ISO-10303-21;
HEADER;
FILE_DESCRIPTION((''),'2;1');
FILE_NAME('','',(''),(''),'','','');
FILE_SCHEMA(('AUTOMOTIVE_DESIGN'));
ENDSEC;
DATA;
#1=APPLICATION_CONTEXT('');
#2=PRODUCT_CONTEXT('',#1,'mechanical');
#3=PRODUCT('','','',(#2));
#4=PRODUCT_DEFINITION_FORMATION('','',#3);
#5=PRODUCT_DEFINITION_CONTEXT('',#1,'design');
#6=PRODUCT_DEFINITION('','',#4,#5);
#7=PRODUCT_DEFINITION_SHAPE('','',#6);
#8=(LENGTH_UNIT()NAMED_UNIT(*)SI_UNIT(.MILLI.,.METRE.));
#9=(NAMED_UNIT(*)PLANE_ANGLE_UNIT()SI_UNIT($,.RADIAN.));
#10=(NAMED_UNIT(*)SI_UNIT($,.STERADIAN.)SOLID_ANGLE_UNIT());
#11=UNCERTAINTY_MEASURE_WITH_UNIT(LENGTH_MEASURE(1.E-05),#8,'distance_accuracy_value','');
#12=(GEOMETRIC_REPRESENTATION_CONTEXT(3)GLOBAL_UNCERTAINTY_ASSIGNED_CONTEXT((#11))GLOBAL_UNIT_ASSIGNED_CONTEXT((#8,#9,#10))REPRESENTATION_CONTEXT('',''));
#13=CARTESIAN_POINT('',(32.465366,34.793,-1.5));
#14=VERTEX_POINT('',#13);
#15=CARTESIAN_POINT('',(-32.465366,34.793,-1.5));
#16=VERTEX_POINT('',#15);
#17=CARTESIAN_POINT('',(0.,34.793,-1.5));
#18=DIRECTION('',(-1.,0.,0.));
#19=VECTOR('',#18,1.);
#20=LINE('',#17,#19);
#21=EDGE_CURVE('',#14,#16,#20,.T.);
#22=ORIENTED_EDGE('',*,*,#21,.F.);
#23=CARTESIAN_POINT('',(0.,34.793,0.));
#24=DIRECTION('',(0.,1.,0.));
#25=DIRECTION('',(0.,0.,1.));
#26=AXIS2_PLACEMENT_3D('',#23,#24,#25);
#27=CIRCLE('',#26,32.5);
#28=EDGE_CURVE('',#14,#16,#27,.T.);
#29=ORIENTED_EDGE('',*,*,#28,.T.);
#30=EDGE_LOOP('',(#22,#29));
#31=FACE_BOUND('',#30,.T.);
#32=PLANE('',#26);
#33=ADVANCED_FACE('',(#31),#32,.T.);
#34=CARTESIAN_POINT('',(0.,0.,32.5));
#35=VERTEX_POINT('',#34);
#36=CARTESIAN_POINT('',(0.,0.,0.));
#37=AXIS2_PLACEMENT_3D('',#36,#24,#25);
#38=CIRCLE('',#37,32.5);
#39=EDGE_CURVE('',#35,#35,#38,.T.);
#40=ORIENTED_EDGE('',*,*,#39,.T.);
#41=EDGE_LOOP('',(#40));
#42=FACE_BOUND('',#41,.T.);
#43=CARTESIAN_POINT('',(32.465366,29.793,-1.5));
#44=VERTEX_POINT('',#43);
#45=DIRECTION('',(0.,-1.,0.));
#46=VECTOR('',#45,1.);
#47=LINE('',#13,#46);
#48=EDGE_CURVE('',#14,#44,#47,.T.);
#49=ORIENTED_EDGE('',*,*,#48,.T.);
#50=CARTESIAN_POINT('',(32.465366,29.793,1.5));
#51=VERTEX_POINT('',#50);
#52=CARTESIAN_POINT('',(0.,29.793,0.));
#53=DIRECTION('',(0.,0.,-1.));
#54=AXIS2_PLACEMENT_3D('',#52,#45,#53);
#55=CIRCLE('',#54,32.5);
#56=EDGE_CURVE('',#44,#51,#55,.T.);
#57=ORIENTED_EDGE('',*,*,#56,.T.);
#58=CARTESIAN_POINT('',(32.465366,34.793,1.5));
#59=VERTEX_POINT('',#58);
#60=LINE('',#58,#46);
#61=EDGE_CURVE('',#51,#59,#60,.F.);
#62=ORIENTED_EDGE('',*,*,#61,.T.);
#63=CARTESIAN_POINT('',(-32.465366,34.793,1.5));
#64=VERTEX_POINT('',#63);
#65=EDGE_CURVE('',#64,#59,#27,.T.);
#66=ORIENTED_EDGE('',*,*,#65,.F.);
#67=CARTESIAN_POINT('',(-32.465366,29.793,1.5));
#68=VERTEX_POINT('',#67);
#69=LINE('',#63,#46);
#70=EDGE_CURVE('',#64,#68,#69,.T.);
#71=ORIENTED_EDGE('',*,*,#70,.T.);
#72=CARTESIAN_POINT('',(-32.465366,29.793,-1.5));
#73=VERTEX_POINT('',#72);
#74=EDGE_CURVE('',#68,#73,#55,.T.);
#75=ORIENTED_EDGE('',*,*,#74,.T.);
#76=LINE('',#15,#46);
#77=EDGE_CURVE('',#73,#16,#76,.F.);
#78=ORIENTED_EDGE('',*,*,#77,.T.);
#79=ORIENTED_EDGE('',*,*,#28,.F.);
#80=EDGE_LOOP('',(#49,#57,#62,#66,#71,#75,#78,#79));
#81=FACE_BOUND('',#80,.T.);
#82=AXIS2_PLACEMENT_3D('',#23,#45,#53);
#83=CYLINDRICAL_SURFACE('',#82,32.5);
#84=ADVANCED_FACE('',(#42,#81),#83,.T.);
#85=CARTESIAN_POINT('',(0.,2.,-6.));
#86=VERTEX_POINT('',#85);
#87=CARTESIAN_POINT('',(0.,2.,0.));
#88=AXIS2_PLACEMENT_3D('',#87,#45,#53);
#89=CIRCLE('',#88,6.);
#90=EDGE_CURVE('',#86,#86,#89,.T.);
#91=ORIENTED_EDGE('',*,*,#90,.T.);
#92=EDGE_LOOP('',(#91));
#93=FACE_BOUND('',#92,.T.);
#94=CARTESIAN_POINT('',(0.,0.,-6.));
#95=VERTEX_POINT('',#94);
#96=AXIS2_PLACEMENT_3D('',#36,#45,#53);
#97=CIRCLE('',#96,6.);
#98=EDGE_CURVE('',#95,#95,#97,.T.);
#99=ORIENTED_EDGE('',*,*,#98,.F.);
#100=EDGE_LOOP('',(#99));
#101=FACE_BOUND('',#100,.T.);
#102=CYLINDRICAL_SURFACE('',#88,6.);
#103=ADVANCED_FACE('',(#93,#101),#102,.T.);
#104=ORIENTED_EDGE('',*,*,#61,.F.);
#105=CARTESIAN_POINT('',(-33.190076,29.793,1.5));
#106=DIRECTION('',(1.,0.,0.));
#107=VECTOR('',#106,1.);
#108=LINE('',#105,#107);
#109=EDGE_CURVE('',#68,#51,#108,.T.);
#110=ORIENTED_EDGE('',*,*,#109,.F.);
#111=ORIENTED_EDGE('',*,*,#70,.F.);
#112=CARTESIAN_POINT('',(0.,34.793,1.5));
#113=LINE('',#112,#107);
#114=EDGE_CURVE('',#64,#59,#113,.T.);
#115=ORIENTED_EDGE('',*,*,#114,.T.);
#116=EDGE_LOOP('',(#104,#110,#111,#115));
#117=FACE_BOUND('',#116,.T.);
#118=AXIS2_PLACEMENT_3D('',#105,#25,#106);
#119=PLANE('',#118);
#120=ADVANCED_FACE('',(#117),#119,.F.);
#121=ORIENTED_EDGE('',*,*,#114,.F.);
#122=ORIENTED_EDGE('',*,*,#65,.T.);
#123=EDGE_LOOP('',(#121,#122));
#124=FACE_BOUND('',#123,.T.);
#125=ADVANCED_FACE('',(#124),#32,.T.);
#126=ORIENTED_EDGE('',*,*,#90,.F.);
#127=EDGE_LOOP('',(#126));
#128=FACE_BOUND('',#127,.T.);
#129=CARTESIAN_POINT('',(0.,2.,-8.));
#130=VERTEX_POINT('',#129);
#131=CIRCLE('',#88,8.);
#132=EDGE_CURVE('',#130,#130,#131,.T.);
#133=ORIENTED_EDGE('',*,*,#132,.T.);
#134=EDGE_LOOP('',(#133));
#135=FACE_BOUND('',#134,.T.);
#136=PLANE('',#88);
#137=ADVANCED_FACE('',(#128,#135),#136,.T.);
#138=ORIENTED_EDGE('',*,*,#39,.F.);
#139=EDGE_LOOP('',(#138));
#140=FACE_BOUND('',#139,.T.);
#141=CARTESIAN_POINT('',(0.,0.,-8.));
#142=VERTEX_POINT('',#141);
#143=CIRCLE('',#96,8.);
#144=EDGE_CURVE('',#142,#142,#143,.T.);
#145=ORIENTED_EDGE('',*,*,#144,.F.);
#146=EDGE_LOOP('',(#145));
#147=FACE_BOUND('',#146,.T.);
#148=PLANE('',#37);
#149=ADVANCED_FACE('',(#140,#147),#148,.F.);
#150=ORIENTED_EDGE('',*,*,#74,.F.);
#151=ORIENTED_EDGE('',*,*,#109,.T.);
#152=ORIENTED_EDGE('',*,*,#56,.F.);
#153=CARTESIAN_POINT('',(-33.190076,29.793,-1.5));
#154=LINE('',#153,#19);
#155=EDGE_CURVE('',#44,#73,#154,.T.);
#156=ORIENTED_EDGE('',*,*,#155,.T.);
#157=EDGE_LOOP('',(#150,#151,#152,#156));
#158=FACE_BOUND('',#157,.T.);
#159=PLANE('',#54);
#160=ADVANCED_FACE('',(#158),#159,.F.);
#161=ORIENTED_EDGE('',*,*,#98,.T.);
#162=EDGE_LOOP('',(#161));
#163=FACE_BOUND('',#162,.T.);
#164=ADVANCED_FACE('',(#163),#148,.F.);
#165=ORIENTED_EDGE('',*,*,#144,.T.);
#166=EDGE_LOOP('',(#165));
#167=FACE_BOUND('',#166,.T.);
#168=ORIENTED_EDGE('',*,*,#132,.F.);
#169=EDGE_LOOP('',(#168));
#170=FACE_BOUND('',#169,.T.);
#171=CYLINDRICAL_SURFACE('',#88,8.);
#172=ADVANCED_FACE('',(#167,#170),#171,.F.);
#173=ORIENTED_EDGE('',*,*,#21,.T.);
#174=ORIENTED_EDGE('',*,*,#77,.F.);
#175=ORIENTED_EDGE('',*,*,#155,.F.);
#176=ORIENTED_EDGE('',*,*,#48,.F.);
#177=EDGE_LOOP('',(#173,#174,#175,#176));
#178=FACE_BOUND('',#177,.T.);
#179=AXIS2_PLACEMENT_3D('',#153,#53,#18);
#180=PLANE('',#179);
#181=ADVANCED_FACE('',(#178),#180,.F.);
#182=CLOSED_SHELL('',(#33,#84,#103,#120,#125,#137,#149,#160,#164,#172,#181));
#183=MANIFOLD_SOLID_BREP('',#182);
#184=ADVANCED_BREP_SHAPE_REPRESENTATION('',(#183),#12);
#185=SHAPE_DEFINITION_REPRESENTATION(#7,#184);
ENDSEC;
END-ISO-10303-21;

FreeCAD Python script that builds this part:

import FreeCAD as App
import Part
import Sketcher


def add_polygon(sketch, points):
    """Adds a closed chain of lines whose ends are joined by coincident constraints."""
    first, n = sketch.GeometryCount, len(points)
    for a, b in zip(points, points[1:] + points[:1]):
        sketch.addGeometry(Part.LineSegment(App.Vector(*a, 0), App.Vector(*b, 0)), False)
    for i in range(n):
        sketch.addConstraint(Sketcher.Constraint("Coincident", first + i, 2, first + (i + 1) % n, 1))

doc = App.newDocument("Part")
body = doc.addObject("PartDesign::Body", "Body")

# Sketch on XZ plane
sketch1 = body.newObject("Sketcher::SketchObject", "Sketch")
sketch1.AttachmentSupport = (doc.getObject("XZ_Plane"), [""])
sketch1.MapMode = "FlatFace"
sketch1.addGeometry(Part.Circle(App.Vector(0, 0, 0), App.Vector(0, 0, 1), 32), False)
sketch1.addConstraint(Sketcher.Constraint("Coincident", 0, 3, -1, 1))
sketch1.addConstraint(Sketcher.Constraint("Diameter", 0, 65.0))
pad1 = body.newObject("PartDesign::Pad", "Pad")
pad1.Profile = sketch1
pad1.Length = 34.793
pad1.Reversed = True

# Sketch on XZ plane
sketch2 = body.newObject("Sketcher::SketchObject", "Sketch001")
sketch2.AttachmentSupport = (doc.getObject("XZ_Plane"), [""])
sketch2.MapMode = "FlatFace"
sketch2.AttachmentOffset = App.Placement(App.Vector(0, 0, -34.793), App.Rotation())
add_polygon(sketch2, [(-33.2, -1.5), (-33.2, 1.5), (33.2, 1.5), (33.2, -1.5)])  # lines 0-3
sketch2.addConstraint(Sketcher.Constraint("Vertical", 0))
sketch2.addConstraint(Sketcher.Constraint("Horizontal", 1))
sketch2.addConstraint(Sketcher.Constraint("Vertical", 2))
sketch2.addConstraint(Sketcher.Constraint("Horizontal", 3))
sketch2.addConstraint(Sketcher.Constraint("Symmetric", 0, 2, 2, 2, -1, 1))
sketch2.addConstraint(Sketcher.Constraint("DistanceY", 0, 1, 0, 2, 3.0))
sketch2.addConstraint(Sketcher.Constraint("DistanceX", 1, 1, 1, 2, 66.380152))
pocket1 = body.newObject("PartDesign::Pocket", "Pocket")
pocket1.Profile = sketch2
pocket1.Length = 5
pocket1.Reversed = True

# Sketch on XZ plane
sketch3 = body.newObject("Sketcher::SketchObject", "Sketch002")
sketch3.AttachmentSupport = (doc.getObject("XZ_Plane"), [""])
sketch3.MapMode = "FlatFace"
sketch3.addGeometry(Part.Circle(App.Vector(0, 0, 0), App.Vector(0, 0, 1), 8), False)
sketch3.addGeometry(Part.Circle(App.Vector(0, 0, 0), App.Vector(0, 0, 1), 6), False)
sketch3.addConstraint(Sketcher.Constraint("Coincident", 0, 3, -1, 1))
sketch3.addConstraint(Sketcher.Constraint("Coincident", 1, 3, -1, 1))
sketch3.addConstraint(Sketcher.Constraint("Diameter", 0, 16.0))
sketch3.addConstraint(Sketcher.Constraint("Diameter", 1, 12.0))
pocket2 = body.newObject("PartDesign::Pocket", "Pocket001")
pocket2.Profile = sketch3
pocket2.Length = 2

doc.recompute()
